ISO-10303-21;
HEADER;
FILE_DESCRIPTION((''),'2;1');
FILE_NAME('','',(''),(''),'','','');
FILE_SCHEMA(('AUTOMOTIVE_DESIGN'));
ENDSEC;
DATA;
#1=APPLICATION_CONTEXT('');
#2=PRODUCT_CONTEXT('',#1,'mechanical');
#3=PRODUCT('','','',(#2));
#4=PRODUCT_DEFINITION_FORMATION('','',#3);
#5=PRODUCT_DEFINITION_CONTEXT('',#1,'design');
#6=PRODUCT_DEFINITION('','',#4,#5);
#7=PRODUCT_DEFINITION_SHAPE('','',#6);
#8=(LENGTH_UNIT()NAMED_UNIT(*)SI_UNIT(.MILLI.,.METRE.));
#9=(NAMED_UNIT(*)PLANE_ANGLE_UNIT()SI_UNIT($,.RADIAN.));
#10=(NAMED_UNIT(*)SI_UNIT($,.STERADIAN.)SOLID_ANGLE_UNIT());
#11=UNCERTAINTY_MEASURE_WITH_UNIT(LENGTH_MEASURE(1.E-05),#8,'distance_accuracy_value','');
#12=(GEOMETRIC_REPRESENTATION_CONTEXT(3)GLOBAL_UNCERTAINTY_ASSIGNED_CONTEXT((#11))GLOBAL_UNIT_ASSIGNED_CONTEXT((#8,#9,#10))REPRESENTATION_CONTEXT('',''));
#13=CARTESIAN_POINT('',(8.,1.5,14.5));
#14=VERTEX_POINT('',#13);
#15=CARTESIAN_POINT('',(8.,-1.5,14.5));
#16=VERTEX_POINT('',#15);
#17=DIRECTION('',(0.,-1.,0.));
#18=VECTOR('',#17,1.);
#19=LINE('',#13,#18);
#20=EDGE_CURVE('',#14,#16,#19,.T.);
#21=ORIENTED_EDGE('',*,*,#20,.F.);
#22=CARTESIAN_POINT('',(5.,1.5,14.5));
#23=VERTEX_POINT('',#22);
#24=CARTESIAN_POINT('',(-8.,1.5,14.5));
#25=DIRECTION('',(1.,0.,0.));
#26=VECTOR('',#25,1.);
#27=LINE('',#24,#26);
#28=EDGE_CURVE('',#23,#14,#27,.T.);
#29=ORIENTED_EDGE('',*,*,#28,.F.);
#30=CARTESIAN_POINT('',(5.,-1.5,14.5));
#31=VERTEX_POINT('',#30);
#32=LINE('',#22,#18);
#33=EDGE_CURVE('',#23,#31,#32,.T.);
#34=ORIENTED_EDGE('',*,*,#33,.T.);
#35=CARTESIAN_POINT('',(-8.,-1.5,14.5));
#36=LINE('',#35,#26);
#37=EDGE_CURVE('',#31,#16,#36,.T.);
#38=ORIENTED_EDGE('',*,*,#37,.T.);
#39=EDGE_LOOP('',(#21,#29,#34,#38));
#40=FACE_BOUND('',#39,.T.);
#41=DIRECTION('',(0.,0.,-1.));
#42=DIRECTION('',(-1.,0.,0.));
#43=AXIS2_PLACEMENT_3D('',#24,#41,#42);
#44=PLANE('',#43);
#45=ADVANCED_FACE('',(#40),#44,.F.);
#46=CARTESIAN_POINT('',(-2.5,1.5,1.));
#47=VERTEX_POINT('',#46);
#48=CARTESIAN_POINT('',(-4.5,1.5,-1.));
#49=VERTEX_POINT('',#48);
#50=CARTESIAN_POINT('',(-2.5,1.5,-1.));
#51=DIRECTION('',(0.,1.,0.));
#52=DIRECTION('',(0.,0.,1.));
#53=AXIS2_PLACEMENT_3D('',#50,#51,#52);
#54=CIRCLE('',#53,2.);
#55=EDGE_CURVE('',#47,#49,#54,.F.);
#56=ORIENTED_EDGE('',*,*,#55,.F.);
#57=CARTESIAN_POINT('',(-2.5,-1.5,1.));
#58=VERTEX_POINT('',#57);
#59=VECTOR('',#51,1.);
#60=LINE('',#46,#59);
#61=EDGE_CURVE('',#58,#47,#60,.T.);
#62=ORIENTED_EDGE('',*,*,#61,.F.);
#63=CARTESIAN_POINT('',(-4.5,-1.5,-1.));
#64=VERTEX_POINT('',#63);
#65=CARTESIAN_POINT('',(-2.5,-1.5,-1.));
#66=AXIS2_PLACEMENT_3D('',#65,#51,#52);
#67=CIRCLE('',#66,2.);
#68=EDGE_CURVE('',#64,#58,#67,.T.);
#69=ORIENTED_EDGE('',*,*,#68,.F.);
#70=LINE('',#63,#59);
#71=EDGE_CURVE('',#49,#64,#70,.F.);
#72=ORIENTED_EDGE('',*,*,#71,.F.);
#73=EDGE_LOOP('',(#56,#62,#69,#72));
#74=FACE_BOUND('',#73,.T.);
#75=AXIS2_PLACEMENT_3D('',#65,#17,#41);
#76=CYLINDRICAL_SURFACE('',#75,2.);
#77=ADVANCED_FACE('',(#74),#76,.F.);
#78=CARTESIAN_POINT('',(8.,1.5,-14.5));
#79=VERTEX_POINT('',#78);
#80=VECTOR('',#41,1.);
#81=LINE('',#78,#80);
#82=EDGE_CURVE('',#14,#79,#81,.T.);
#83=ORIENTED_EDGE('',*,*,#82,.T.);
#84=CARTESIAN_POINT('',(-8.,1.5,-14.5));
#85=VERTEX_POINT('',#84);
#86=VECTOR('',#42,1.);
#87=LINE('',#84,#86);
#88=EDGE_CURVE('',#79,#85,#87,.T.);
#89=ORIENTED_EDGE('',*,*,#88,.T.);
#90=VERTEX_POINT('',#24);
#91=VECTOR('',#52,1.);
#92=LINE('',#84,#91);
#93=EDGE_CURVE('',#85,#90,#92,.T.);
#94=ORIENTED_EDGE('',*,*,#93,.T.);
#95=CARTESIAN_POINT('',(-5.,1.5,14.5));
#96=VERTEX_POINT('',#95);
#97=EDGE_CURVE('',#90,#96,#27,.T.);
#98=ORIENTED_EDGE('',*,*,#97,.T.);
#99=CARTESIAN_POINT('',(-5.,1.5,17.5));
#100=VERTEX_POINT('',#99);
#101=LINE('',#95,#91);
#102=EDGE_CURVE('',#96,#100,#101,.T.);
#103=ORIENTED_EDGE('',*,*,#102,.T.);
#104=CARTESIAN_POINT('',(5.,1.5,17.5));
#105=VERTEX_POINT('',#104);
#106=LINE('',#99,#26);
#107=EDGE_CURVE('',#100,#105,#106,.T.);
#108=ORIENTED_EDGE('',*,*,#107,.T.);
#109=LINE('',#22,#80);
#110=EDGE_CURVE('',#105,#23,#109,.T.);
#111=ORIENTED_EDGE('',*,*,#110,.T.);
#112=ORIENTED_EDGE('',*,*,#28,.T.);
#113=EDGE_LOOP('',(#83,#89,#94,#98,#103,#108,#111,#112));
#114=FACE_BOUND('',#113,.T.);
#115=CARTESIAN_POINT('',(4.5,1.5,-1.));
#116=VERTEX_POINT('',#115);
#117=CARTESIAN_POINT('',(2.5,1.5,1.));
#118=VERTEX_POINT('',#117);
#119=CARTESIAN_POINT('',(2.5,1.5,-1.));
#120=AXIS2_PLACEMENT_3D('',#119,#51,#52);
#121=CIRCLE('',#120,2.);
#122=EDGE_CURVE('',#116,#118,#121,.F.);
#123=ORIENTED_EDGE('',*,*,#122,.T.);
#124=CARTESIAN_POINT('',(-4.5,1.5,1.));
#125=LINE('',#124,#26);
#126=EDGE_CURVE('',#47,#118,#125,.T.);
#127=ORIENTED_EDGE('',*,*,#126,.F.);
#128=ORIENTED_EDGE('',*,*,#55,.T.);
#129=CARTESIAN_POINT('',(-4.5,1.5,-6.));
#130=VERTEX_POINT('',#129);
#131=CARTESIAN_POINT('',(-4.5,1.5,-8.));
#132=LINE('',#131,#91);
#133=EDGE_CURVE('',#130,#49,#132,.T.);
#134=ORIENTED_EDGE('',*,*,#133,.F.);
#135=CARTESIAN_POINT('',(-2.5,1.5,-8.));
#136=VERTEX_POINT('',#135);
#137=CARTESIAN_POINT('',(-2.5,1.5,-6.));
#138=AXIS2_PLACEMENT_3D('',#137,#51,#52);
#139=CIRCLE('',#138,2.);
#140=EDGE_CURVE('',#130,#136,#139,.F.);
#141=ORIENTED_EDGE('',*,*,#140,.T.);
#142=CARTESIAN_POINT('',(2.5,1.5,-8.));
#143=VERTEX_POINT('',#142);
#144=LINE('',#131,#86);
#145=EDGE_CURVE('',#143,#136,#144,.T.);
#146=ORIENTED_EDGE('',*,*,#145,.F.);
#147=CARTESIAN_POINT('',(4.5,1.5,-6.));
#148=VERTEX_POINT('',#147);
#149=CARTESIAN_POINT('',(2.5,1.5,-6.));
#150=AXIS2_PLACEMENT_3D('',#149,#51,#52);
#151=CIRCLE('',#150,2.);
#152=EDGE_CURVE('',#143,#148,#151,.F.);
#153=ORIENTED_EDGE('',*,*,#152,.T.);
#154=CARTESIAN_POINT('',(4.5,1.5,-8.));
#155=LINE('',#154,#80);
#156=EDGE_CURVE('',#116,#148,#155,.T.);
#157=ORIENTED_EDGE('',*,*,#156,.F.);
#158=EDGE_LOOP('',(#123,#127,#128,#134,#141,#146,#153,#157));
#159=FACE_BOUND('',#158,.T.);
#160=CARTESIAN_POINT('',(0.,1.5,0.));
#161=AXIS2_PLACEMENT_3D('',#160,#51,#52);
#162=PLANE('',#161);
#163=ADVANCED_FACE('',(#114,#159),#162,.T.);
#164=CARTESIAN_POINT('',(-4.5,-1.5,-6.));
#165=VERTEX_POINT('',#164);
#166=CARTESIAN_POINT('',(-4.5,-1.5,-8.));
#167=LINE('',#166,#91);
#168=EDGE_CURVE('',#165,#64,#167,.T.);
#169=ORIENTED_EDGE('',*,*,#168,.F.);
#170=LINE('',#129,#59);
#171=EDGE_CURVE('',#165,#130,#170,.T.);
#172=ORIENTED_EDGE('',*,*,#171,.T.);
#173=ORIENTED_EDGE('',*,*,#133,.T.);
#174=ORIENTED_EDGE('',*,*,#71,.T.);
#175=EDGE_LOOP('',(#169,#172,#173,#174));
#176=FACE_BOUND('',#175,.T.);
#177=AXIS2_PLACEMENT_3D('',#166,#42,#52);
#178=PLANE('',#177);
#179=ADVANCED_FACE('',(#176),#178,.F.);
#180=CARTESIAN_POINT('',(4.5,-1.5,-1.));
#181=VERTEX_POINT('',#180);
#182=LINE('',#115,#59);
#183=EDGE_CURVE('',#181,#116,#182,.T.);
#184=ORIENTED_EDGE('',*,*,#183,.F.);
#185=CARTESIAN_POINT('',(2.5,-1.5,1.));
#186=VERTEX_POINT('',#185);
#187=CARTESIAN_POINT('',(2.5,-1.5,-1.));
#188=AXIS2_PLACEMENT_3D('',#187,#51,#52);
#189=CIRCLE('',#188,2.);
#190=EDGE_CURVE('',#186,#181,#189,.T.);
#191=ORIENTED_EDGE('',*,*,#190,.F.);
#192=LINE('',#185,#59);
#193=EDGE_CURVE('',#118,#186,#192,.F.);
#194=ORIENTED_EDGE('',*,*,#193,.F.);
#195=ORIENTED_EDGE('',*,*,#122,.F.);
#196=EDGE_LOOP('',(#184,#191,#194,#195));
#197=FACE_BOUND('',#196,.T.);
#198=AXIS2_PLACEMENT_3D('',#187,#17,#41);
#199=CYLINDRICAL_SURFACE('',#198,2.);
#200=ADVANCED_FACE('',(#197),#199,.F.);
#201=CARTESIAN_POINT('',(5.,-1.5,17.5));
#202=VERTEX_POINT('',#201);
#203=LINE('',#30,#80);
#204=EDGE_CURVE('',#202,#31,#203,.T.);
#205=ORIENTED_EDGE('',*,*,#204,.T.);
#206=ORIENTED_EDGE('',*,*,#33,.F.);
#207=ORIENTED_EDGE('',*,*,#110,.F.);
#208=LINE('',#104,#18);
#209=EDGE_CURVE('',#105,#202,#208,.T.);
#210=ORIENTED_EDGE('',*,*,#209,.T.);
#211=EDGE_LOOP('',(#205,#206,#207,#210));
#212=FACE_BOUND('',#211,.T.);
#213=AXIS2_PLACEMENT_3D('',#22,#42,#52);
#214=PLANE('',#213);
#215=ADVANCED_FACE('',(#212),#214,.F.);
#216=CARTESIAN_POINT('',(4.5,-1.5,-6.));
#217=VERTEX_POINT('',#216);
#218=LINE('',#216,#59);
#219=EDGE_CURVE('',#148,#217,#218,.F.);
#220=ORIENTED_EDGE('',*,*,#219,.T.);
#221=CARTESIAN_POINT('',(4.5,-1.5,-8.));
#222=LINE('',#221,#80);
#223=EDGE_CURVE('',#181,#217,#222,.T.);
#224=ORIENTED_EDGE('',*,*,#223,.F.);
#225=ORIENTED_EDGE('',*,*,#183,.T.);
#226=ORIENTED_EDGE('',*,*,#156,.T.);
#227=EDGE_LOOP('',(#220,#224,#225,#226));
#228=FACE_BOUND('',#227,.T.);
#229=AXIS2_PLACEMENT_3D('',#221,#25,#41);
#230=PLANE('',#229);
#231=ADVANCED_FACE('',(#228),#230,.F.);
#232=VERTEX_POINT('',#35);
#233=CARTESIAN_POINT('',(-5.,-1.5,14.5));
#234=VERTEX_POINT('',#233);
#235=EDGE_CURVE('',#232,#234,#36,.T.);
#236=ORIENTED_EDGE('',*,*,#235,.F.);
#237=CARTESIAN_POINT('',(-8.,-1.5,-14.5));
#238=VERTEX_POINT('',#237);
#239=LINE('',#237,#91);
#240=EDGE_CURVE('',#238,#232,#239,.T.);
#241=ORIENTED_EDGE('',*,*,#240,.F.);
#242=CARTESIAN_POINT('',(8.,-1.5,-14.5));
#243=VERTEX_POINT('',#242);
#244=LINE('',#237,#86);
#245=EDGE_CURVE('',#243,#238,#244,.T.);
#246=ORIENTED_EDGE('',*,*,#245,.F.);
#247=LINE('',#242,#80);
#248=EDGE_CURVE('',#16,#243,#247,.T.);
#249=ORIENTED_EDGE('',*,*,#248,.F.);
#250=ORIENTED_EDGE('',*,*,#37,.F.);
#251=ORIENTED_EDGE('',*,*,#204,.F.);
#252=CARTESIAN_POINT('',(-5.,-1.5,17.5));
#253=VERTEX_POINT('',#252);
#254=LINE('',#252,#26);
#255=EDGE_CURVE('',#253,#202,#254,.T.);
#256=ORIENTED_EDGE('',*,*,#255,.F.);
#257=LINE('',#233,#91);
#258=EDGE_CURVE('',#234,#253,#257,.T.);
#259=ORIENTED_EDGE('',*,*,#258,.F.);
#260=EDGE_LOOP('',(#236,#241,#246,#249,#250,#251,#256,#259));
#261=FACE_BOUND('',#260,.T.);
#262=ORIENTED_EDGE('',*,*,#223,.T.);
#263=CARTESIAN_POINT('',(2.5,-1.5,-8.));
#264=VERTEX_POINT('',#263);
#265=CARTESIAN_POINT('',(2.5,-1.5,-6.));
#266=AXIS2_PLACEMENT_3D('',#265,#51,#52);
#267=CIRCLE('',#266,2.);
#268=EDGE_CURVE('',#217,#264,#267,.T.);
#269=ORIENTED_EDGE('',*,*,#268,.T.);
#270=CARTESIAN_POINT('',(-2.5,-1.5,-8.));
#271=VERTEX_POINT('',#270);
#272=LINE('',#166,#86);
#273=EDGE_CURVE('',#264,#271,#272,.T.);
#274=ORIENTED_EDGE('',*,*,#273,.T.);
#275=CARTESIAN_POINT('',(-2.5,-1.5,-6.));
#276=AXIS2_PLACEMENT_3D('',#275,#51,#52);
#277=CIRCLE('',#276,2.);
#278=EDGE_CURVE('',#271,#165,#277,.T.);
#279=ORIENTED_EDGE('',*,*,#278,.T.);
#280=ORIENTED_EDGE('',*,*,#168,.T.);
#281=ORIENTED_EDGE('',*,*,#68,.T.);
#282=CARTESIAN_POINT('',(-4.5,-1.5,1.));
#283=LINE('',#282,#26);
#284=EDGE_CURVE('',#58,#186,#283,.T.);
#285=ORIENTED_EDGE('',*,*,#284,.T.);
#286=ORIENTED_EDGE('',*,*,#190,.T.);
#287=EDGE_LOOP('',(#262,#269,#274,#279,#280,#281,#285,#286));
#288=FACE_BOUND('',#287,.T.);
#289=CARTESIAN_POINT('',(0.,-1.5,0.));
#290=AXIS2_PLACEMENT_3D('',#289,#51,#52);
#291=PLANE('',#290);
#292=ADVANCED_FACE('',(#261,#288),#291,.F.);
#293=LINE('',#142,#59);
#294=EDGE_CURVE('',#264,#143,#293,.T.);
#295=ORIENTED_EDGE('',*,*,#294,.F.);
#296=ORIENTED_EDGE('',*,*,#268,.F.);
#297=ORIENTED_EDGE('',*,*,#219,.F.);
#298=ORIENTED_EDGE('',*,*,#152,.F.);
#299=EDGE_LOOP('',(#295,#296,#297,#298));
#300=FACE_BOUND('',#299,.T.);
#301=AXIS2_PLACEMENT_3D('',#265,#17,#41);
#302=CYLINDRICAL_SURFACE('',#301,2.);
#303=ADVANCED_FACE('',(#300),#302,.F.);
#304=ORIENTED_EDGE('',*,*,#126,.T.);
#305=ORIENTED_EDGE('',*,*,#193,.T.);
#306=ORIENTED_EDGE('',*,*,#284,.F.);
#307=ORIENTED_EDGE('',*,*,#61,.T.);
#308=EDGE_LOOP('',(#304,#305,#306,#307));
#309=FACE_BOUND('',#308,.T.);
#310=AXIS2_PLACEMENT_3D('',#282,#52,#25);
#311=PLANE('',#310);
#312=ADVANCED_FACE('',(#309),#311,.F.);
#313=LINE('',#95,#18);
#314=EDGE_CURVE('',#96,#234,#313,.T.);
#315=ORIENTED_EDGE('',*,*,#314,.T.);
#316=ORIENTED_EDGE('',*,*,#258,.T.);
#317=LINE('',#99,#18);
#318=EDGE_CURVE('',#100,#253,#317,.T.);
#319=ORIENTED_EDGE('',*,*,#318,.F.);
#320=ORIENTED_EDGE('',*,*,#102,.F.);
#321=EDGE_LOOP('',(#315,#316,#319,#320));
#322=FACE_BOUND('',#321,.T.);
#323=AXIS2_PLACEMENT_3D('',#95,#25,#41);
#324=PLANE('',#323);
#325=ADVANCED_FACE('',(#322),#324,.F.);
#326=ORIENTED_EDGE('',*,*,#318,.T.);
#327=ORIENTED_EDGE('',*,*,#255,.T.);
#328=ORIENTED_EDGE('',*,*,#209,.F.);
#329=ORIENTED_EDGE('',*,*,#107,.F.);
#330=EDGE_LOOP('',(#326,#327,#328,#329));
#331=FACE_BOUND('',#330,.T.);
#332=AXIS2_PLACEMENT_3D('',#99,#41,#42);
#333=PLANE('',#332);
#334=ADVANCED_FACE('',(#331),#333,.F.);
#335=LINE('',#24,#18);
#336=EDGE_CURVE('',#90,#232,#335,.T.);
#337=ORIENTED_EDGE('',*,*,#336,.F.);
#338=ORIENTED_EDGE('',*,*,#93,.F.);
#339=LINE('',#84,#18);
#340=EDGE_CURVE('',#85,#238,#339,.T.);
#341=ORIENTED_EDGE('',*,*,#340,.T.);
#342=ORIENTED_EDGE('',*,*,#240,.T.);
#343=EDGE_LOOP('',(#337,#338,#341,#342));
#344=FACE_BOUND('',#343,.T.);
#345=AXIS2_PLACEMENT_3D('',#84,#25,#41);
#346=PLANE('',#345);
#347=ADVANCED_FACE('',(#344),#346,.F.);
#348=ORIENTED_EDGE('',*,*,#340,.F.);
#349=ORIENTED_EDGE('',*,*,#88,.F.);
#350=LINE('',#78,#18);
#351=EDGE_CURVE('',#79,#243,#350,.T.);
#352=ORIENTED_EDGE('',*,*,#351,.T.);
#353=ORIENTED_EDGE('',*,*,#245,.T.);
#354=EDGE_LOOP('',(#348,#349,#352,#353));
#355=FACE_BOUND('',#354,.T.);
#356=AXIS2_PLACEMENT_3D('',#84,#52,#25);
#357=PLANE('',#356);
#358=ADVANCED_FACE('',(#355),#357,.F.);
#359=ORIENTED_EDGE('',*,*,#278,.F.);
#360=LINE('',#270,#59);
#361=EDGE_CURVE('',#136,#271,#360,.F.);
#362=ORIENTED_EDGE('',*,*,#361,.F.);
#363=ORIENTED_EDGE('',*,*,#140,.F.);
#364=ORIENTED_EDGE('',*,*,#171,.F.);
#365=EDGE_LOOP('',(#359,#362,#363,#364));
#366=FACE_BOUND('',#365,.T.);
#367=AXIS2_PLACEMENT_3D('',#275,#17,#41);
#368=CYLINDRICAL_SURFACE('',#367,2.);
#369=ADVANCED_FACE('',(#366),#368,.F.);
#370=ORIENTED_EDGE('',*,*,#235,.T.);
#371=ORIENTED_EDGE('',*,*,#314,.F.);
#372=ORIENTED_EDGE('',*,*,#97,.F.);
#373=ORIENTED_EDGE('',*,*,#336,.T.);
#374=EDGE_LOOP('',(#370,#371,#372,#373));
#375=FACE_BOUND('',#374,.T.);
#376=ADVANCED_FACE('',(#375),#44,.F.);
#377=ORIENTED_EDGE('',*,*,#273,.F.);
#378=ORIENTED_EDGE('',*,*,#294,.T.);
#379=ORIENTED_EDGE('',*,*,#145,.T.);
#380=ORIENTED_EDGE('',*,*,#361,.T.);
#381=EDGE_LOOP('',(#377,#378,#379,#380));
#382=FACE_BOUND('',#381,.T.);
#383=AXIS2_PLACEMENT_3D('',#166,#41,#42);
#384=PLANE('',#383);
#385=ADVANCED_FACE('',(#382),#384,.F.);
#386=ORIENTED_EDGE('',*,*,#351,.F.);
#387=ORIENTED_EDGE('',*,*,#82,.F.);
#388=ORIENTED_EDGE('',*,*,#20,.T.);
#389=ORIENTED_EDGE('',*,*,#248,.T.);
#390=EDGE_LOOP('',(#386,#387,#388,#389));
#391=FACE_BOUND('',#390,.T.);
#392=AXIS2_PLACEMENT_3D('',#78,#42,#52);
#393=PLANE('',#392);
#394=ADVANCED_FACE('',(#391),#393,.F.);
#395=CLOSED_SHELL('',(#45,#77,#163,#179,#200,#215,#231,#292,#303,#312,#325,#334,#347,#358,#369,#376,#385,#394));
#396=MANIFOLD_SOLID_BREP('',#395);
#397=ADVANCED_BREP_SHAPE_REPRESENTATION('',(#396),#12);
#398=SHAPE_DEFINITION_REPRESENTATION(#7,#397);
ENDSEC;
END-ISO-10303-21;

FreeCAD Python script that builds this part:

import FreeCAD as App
import Part
import Sketcher
Q = App.Units.Quantity


def edges_at(feature, points):
    """Names of the edges that pass closest to the given points."""
    edges = feature.Shape.Edges
    near = lambda p: min(range(len(edges)), key=lambda i: edges[i].distToShape(Part.Vertex(*p))[0])
    return sorted({f"Edge{near(p) + 1}" for p in points})


def add_polygon(sketch, points):
    """Adds a closed chain of lines whose ends are joined by coincident constraints."""
    first, n = sketch.GeometryCount, len(points)
    for a, b in zip(points, points[1:] + points[:1]):
        sketch.addGeometry(Part.LineSegment(App.Vector(*a, 0), App.Vector(*b, 0)), False)
    for i in range(n):
        sketch.addConstraint(Sketcher.Constraint("Coincident", first + i, 2, first + (i + 1) % n, 1))

doc = App.newDocument("Part")
body = doc.addObject("PartDesign::Body", "Body")

# Sketch on XZ plane
sketch1 = doc.addObject("Sketcher::SketchObject", "Sketch")
body.addObject(sketch1)
sketch1.AttachmentSupport = (doc.XZ_Plane, [""])
sketch1.MapMode = "FlatFace"
add_polygon(sketch1, [(-8, -14.5), (-8, 14.5), (8, 14.5), (8, -14.5)])  # lines 0-3
sketch1.addConstraint([
    Sketcher.Constraint("Vertical", 0),
    Sketcher.Constraint("Horizontal", 1),
    Sketcher.Constraint("Vertical", 2),
    Sketcher.Constraint("Horizontal", 3),
    Sketcher.Constraint("Symmetric", 0, 2, 2, 2, -1, 1),
    Sketcher.Constraint("DistanceX", 1, 1, 1, 2, Q("16 mm")),
    Sketcher.Constraint("DistanceY", 0, 1, 0, 2, Q("29 mm")),
])
pad1 = doc.addObject("PartDesign::Pad", "Pad")
body.addObject(pad1)
pad1.Profile = sketch1
pad1.Length = 3
pad1.Midplane = True

# Sketch on XZ plane
sketch2 = doc.addObject("Sketcher::SketchObject", "Sketch001")
body.addObject(sketch2)
sketch2.AttachmentSupport = (doc.XZ_Plane, [""])
sketch2.MapMode = "FlatFace"
add_polygon(sketch2, [(-5, 14.5), (-5, 17.5), (5, 17.5), (5, 14.5)])  # lines 0-3
sketch2.addConstraint([
    Sketcher.Constraint("Vertical", 0),
    Sketcher.Constraint("Horizontal", 1),
    Sketcher.Constraint("Vertical", 2),
    Sketcher.Constraint("Horizontal", 3),
    Sketcher.Constraint("DistanceX", 1, 1, 1, 2, Q("10 mm")),
    Sketcher.Constraint("DistanceY", 0, 1, 0, 2, Q("3 mm")),
    Sketcher.Constraint("DistanceX", 0, 2, -1, 1, Q("5 mm")),
    Sketcher.Constraint("DistanceY", -1, 1, 0, 2, Q("17.5 mm")),
])
pad2 = doc.addObject("PartDesign::Pad", "Pad001")
body.addObject(pad2)
pad2.Profile = sketch2
pad2.Length = 3
pad2.Midplane = True

# Sketch on XZ plane
sketch3 = doc.addObject("Sketcher::SketchObject", "Sketch002")
body.addObject(sketch3)
sketch3.AttachmentSupport = (doc.XZ_Plane, [""])
sketch3.MapMode = "FlatFace"
add_polygon(sketch3, [(-4.5, -8), (-4.5, 1), (4.5, 1), (4.5, -8)])  # lines 0-3
sketch3.addConstraint([
    Sketcher.Constraint("Vertical", 0),
    Sketcher.Constraint("Horizontal", 1),
    Sketcher.Constraint("Vertical", 2),
    Sketcher.Constraint("Horizontal", 3),
    Sketcher.Constraint("Equal", 3, 0),
    Sketcher.Constraint("DistanceX", 1, 1, 1, 2, Q("9 mm")),
    Sketcher.Constraint("DistanceY", -1, 1, 0, 2, Q("1 mm")),
    Sketcher.Constraint("DistanceX", 0, 2, -1, 1, Q("4.5 mm")),
])
pocket1 = doc.addObject("PartDesign::Pocket", "Pocket")
body.addObject(pocket1)
pocket1.Profile = sketch3
pocket1.Type = "ThroughAll"
pocket1.Midplane = True
doc.recompute()

fillet = doc.addObject("PartDesign::Fillet", "Fillet")
body.addObject(fillet)
fillet.Base = (pocket1, edges_at(pocket1, [
    (-4.5, 0, 1),
    (-4.5, 0, -8),
    (4.5, 0, -8),
    (4.5, 0, 1),
]))
fillet.Radius = 2

doc.recompute()
